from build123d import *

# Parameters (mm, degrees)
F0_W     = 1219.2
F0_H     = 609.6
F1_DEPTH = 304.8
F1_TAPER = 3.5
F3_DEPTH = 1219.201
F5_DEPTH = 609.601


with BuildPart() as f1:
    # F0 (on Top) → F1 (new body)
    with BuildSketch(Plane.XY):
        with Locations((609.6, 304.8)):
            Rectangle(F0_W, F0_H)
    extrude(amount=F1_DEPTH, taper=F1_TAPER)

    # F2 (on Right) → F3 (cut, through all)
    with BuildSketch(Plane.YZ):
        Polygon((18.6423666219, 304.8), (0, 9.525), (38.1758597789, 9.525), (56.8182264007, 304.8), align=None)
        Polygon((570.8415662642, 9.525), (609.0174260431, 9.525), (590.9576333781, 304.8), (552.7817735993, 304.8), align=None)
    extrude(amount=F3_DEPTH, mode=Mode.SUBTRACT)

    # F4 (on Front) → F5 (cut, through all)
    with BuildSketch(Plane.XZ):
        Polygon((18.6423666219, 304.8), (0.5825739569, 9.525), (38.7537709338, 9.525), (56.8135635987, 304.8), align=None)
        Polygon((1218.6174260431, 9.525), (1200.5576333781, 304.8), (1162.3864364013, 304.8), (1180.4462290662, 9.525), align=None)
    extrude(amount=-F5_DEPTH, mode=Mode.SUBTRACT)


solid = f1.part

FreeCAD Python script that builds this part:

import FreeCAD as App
import Part
import Sketcher

V = App.Vector
Q = App.Units.Quantity


def add_polygon(sketch, points):
    """Adds a closed chain of lines whose ends are joined by coincident constraints."""
    first, n = sketch.GeometryCount, len(points)
    for a, b in zip(points, points[1:] + points[:1]):
        sketch.addGeometry(Part.LineSegment(App.Vector(*a, 0), App.Vector(*b, 0)), False)
    for i in range(n):
        sketch.addConstraint(Sketcher.Constraint("Coincident", first + i, 2, first + (i + 1) % n, 1))

doc = App.newDocument("Part")
params = doc.addObject("Spreadsheet::Sheet", "Params")
for row, (alias, value) in enumerate([
    ("sketch1_width", "48 in"),
    ("sketch1_height", "24 in"),
    ("pad1_length", "12 in"),
    ("pad1_taper", "-3.5 deg"),
], start=1):
    params.set(f"A{row}", alias)
    params.set(f"B{row}", "=" + value)
    params.setAlias(f"B{row}", alias)

body = doc.addObject("PartDesign::Body", "Body")

sketch1 = body.newObject("Sketcher::SketchObject", "Sketch")
sketch1.AttachmentSupport = (doc.getObject("XY_Plane"), [""])
sketch1.MapMode = "FlatFace"
add_polygon(sketch1, [(0, 610), (0, 0), (1219, 0), (1219, 610)])
sketch1.addConstraint([
    Sketcher.Constraint("Vertical", 0),
    Sketcher.Constraint("Horizontal", 1),
    Sketcher.Constraint("Vertical", 2),
    Sketcher.Constraint("Horizontal", 3),
    Sketcher.Constraint("Coincident", 0, 2, -1, 1),
    Sketcher.Constraint("DistanceX", 1, 1, 1, 2, Q("48 in")),
    Sketcher.Constraint("DistanceY", 0, 2, 0, 1, Q("24 in")),
])
sketch1.setExpression("Constraints[9]", "Params.sketch1_width")
sketch1.setExpression("Constraints[10]", "Params.sketch1_height")
pad1 = body.newObject("PartDesign::Pad", "Pad")
pad1.Profile = sketch1
pad1.setExpression("Length", "Params.pad1_length")
pad1.setExpression("TaperAngle", "Params.pad1_taper")

sketch2 = body.newObject("Sketcher::SketchObject", "Sketch001")
sketch2.AttachmentSupport = (doc.getObject("YZ_Plane"), [""])
sketch2.MapMode = "FlatFace"
add_polygon(sketch2, [(19, 305), (0, 10), (38, 10), (57, 305)])
add_polygon(sketch2, [(571, 10), (609, 10), (591, 305), (553, 305)])
sketch2.addConstraint([
    Sketcher.Constraint("Horizontal", 1),
    Sketcher.Constraint("Horizontal", 3),
    Sketcher.Constraint("Horizontal", 4),
    Sketcher.Constraint("Horizontal", 6),
    Sketcher.Constraint("PointOnObject", 0, 2, -2),
    Sketcher.Constraint("Parallel", 0, 2),
    Sketcher.Constraint("Parallel", 5, 7),
    Sketcher.Constraint("Horizontal", 1, 2, 4, 2),
    Sketcher.Constraint("Horizontal", 3, 2, 5, 2),
    Sketcher.Constraint("Equal", 3, 4),
    Sketcher.Constraint("DistanceY", -1, 1, 2, 2, Q("12 in")),
    Sketcher.Constraint("Angle", 5, Q("93.5 deg")),
    Sketcher.Constraint("DistanceY", -1, 1, 0, 2, Q("0.375 in")),
    Sketcher.Constraint("DistanceX", 1, 1, 1, 2, Q("38.17586 mm")),
    Sketcher.Constraint("DistanceX", 2, 2, 4, 2, Q("552.1992 mm")),
    Sketcher.Constraint("Distance", 0, Q("295.862913 mm")),
])
pocket1 = body.newObject("PartDesign::Pocket", "Pocket")
pocket1.Profile = sketch2
pocket1.Type = "ThroughAll"
pocket1.Reversed = True

sketch3 = body.newObject("Sketcher::SketchObject", "Sketch002")
sketch3.AttachmentSupport = (doc.getObject("XZ_Plane"), [""])
sketch3.MapMode = "FlatFace"
add_polygon(sketch3, [(19, 305), (1, 10), (39, 10), (57, 305)])
add_polygon(sketch3, [(1219, 10), (1201, 305), (1162, 305), (1180, 10)])
sketch3.addConstraint([
    Sketcher.Constraint("Horizontal", 1),
    Sketcher.Constraint("Horizontal", 3),
    Sketcher.Constraint("Horizontal", 5),
    Sketcher.Constraint("Horizontal", 7),
    Sketcher.Constraint("Parallel", 0, 2),
    Sketcher.Constraint("Parallel", 4, 6),
    Sketcher.Constraint("Horizontal", 3, 2, 4, 2),
    Sketcher.Constraint("Horizontal", 1, 2, 6, 2),
    Sketcher.Constraint("Equal", 3, 5),
    Sketcher.Constraint("Equal", 2, 4),
    Sketcher.Constraint("DistanceY", -1, 1, 2, 2, Q("12 in")),
    Sketcher.Constraint("Angle", 0, Q("-93.5 deg")),
    Sketcher.Constraint("DistanceY", -1, 1, 0, 2, Q("0.375 in")),
    Sketcher.Constraint("DistanceX", 1, 1, 1, 2, Q("38.171197 mm")),
    Sketcher.Constraint("DistanceX", -1, 1, 1, 2, Q("38.753771 mm")),
    Sketcher.Constraint("DistanceX", -1, 1, 6, 2, Q("1180.446229 mm")),
])
pocket2 = body.newObject("PartDesign::Pocket", "Pocket001")
pocket2.Profile = sketch3
pocket2.Type = "ThroughAll"

doc.recompute()
